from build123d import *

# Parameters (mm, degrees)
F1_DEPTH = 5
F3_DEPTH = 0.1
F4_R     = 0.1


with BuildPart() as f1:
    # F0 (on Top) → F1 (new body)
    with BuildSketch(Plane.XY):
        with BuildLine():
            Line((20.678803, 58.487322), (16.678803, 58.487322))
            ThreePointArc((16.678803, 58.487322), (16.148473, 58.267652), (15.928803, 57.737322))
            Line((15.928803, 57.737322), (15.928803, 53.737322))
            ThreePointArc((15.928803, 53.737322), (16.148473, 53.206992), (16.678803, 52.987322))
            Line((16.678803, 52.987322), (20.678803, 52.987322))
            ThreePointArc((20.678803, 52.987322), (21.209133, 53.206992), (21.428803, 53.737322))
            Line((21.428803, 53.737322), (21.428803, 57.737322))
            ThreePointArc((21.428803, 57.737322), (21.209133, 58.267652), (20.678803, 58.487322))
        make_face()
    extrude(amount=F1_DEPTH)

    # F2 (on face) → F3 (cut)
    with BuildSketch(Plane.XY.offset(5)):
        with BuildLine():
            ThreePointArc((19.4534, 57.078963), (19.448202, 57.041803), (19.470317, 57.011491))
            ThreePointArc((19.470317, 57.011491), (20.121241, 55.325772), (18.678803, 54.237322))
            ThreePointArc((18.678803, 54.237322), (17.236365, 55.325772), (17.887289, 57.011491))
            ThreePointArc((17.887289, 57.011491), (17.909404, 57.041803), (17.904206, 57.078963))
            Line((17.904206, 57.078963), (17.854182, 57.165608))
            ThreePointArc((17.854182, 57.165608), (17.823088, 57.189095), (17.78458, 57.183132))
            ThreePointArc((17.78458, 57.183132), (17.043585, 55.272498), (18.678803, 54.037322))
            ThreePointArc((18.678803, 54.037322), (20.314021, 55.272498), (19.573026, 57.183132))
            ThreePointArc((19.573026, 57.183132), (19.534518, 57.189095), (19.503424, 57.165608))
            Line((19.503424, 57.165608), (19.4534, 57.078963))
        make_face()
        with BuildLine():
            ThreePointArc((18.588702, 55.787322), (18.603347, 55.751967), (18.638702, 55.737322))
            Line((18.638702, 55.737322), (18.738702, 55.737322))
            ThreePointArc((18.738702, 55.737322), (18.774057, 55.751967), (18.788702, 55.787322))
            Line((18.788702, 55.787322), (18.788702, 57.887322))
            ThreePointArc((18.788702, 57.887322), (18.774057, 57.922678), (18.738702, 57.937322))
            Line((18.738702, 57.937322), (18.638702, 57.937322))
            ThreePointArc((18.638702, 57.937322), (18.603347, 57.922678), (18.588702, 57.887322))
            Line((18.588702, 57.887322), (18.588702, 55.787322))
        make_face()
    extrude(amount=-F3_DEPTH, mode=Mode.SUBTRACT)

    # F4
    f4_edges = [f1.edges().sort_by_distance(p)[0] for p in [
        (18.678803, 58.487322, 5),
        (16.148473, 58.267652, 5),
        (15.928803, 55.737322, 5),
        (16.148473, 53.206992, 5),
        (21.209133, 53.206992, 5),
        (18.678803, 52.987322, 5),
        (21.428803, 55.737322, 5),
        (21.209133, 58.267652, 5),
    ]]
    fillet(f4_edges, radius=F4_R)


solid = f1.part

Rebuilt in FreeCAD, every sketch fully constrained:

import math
import FreeCAD as App
import Part
import Sketcher
from FreeCAD import Vector


def edges_at(feature, points):
    """Names of the edges that pass closest to the given points."""
    edges = feature.Shape.Edges
    near = lambda p: min(range(len(edges)), key=lambda i: edges[i].distToShape(Part.Vertex(*p))[0])
    return sorted({f"Edge{near(p) + 1}" for p in points})

doc = App.newDocument("Part")
body = doc.addObject("PartDesign::Body", "Body")

sketch1 = body.newObject("Sketcher::SketchObject", "Sketch")
sketch1.AttachmentSupport = (doc.getObject("XY_Plane"), [""])
sketch1.MapMode = "FlatFace"
sketch1.addGeometry([
    Part.LineSegment(Vector(20.7, 58.5, 0), Vector(16.7, 58.5, 0)),
    Part.ArcOfCircle(Part.Circle(Vector(16.7, 57.7, 0), Vector(0, 0, 1), 0.8), math.radians(90), math.radians(180)),
    Part.LineSegment(Vector(15.9, 57.7, 0), Vector(15.9, 53.7, 0)),
    Part.ArcOfCircle(Part.Circle(Vector(16.7, 53.7, 0), Vector(0, 0, 1), 0.8), math.radians(-180), math.radians(-90)),
    Part.LineSegment(Vector(16.7, 53, 0), Vector(20.7, 53, 0)),
    Part.ArcOfCircle(Part.Circle(Vector(20.7, 53.7, 0), Vector(0, 0, 1), 0.8), math.radians(-90), math.radians(0)),
    Part.LineSegment(Vector(21.4, 53.7, 0), Vector(21.4, 57.7, 0)),
    Part.ArcOfCircle(Part.Circle(Vector(20.7, 57.7, 0), Vector(0, 0, 1), 0.8), math.radians(0), math.radians(90)),
], False)
sketch1.addConstraint([
    Sketcher.Constraint("Tangent", 0, 2, 1, 1),
    Sketcher.Constraint("Tangent", 1, 2, 2, 1),
    Sketcher.Constraint("Tangent", 2, 2, 3, 1),
    Sketcher.Constraint("Tangent", 3, 2, 4, 1),
    Sketcher.Constraint("Tangent", 4, 2, 5, 1),
    Sketcher.Constraint("Tangent", 5, 2, 6, 1),
    Sketcher.Constraint("Tangent", 6, 2, 7, 1),
    Sketcher.Constraint("Tangent", 7, 2, 0, 1),
    Sketcher.Constraint("Horizontal", 0),
    Sketcher.Constraint("Vertical", 2),
    Sketcher.Constraint("Horizontal", 4),
    Sketcher.Constraint("Vertical", 6),
    Sketcher.Constraint("Equal", 1, 3),
    Sketcher.Constraint("Equal", 3, 5),
    Sketcher.Constraint("Equal", 5, 7),
    Sketcher.Constraint("Equal", 4, 2),
    Sketcher.Constraint("DistanceX", 0, 2, 0, 1, 4.0),
    Sketcher.Constraint("Radius", 1, 0.75),
    Sketcher.Constraint("DistanceY", -1, 1, 1, 3, 57.737322),
    Sketcher.Constraint("DistanceX", -1, 1, 1, 3, 16.678803),
])
pad1 = body.newObject("PartDesign::Pad", "Pad")
pad1.Profile = sketch1
pad1.Length = 5

sketch2 = body.newObject("Sketcher::SketchObject", "Sketch001")
sketch2.AttachmentSupport = (doc.getObject("XY_Plane"), [""])
sketch2.MapMode = "FlatFace"
sketch2.AttachmentOffset = App.Placement(Vector(0, 0, 5), App.Rotation())
sketch2.addGeometry([
    Part.ArcOfCircle(Part.Circle(Vector(19.4967, 57.053963, 0), Vector(0, 0, 1), 0.049999), math.radians(149.998736), math.radians(238.152062)),
    Part.ArcOfCircle(Part.Circle(Vector(18.678803, 55.737322, 0), Vector(0, 0, 1), 1.5), math.radians(-90.000006), math.radians(58.151445)),
    Part.ArcOfCircle(Part.Circle(Vector(18.678803, 55.737322, 0), Vector(0, 0, 1), 1.5), math.radians(121.848555), math.radians(270.000006)),
    Part.ArcOfCircle(Part.Circle(Vector(17.860906, 57.053963, 0), Vector(0, 0, 1), 0.049999), math.radians(-58.152062), math.radians(30.001264)),
    Part.LineSegment(Vector(17.904206, 57.078963, 0), Vector(17.854182, 57.165608, 0)),
    Part.ArcOfCircle(Part.Circle(Vector(17.810881, 57.140608, 0), Vector(0, 0, 1), 0.05), math.radians(29.999972), math.radians(121.736254)),
    Part.ArcOfCircle(Part.Circle(Vector(18.678803, 55.737322, 0), Vector(0, 0, 1), 1.7), math.radians(121.736511), math.radians(269.999983)),
    Part.ArcOfCircle(Part.Circle(Vector(18.678803, 55.737322, 0), Vector(0, 0, 1), 1.7), math.radians(-89.999983), math.radians(58.263489)),
    Part.ArcOfCircle(Part.Circle(Vector(19.546725, 57.140608, 0), Vector(0, 0, 1), 0.05), math.radians(58.263746), math.radians(150.000028)),
    Part.LineSegment(Vector(19.503424, 57.165608, 0), Vector(19.4534, 57.078963, 0)),
    Part.ArcOfCircle(Part.Circle(Vector(18.638703, 55.787323, 0), Vector(0, 0, 1), 0.050001), math.radians(-179.998673), math.radians(-90.001327)),
    Part.LineSegment(Vector(18.638702, 55.737322, 0), Vector(18.738702, 55.737322, 0)),
    Part.ArcOfCircle(Part.Circle(Vector(18.738701, 55.787323, 0), Vector(0, 0, 1), 0.050001), math.radians(-89.998673), math.radians(-0.001327)),
    Part.LineSegment(Vector(18.788702, 55.787322, 0), Vector(18.788702, 57.887322, 0)),
    Part.ArcOfCircle(Part.Circle(Vector(18.738703, 57.887323, 0), Vector(0, 0, 1), 0.049999), math.radians(-0.000629), math.radians(90.000629)),
    Part.LineSegment(Vector(18.738702, 57.937322, 0), Vector(18.638702, 57.937322, 0)),
    Part.ArcOfCircle(Part.Circle(Vector(18.638701, 57.887323, 0), Vector(0, 0, 1), 0.049999), math.radians(89.999371), math.radians(180.000629)),
    Part.LineSegment(Vector(18.588702, 57.887322, 0), Vector(18.588702, 55.787322, 0)),
], False)
sketch2.addConstraint([
    Sketcher.Constraint("Coincident", 0, 2, 1, 2),
    Sketcher.Constraint("Coincident", 1, 1, 2, 2),
    Sketcher.Constraint("Coincident", 2, 1, 3, 1),
    Sketcher.Constraint("Coincident", 3, 2, 4, 1),
    Sketcher.Constraint("Coincident", 4, 2, 5, 1),
    Sketcher.Constraint("Coincident", 5, 2, 6, 1),
    Sketcher.Constraint("Coincident", 6, 2, 7, 1),
    Sketcher.Constraint("Coincident", 7, 2, 8, 1),
    Sketcher.Constraint("Coincident", 8, 2, 9, 1),
    Sketcher.Constraint("Coincident", 9, 2, 0, 1),
    Sketcher.Constraint("Coincident", 10, 2, 11, 1),
    Sketcher.Constraint("Coincident", 11, 2, 12, 1),
    Sketcher.Constraint("Coincident", 12, 2, 13, 1),
    Sketcher.Constraint("Coincident", 13, 2, 14, 1),
    Sketcher.Constraint("Coincident", 14, 2, 15, 1),
    Sketcher.Constraint("Coincident", 15, 2, 16, 1),
    Sketcher.Constraint("Coincident", 16, 2, 17, 1),
    Sketcher.Constraint("Coincident", 17, 2, 10, 1),
    Sketcher.Constraint("Horizontal", 11),
    Sketcher.Constraint("Vertical", 13),
    Sketcher.Constraint("Horizontal", 15),
    Sketcher.Constraint("Vertical", 17),
    Sketcher.Constraint("Coincident", 2, 3, 1, 3),
    Sketcher.Constraint("Coincident", 6, 3, 1, 3),
    Sketcher.Constraint("Coincident", 7, 3, 1, 3),
    Sketcher.Constraint("Radius", 1, 1.5),
    Sketcher.Constraint("Radius", 6, 1.7),
    Sketcher.Constraint("Radius", 0, 0.049999),
    Sketcher.Constraint("Radius", 3, 0.049999),
    Sketcher.Constraint("Radius", 5, 0.05),
    Sketcher.Constraint("Radius", 8, 0.05),
    Sketcher.Constraint("Radius", 10, 0.050001),
    Sketcher.Constraint("Radius", 12, 0.050001),
    Sketcher.Constraint("Radius", 14, 0.049999),
    Sketcher.Constraint("Radius", 16, 0.049999),
    Sketcher.Constraint("DistanceX", 11, 1, 11, 2, 0.1),
    Sketcher.Constraint("DistanceX", 15, 2, 15, 1, 0.1),
    Sketcher.Constraint("DistanceY", 13, 1, 13, 2, 2.1),
    Sketcher.Constraint("DistanceY", 17, 2, 17, 1, 2.1),
    Sketcher.Constraint("DistanceY", 12, 3, 14, 3, 2.099999),
    Sketcher.Constraint("DistanceX", 16, 3, 14, 3, 0.100001),
    Sketcher.Constraint("DistanceX", 16, 3, 14, 2, 0.100001),
    Sketcher.Constraint("DistanceY", 7, 3, 10, 3, 0.050001),
    Sketcher.Constraint("DistanceX", 11, 2, 12, 2, 0.05),
    Sketcher.Constraint("DistanceY", 11, 2, 12, 2, 0.05),
    Sketcher.Constraint("DistanceY", 16, 2, 15, 2, 0.05),
    Sketcher.Constraint("DistanceX", 16, 3, 0, 3, 0.857998),
    Sketcher.Constraint("DistanceY", 3, 3, 3, 2, 0.025),
    Sketcher.Constraint("DistanceY", 5, 3, 4, 2, 0.025),
    Sketcher.Constraint("DistanceY", 8, 3, 8, 2, 0.025),
    Sketcher.Constraint("DistanceY", 0, 3, 9, 2, 0.025),
    Sketcher.Constraint("DistanceX", -1, 1, 0, 3, 19.4967),
    Sketcher.Constraint("DistanceX", 10, 3, 7, 3, 0.040099),
    Sketcher.Constraint("DistanceX", 10, 3, 1, 1, 0.0401),
    Sketcher.Constraint("DistanceX", 5, 2, 5, 3, 0.026301),
    Sketcher.Constraint("DistanceX", 8, 3, 7, 2, 0.026301),
    Sketcher.Constraint("Distance", 4, 0.100049),
    Sketcher.Constraint("Distance", 9, 0.100049),
    Sketcher.Constraint("DistanceX", -1, 1, 5, 3, 17.810881),
    Sketcher.Constraint("DistanceY", -1, 1, 0, 2, 57.011491),
    Sketcher.Constraint("DistanceX", -1, 1, 2, 1, 17.887289),
    Sketcher.Constraint("DistanceY", -1, 1, 2, 1, 57.011491),
    Sketcher.Constraint("DistanceX", -1, 1, 6, 2, 18.678803),
])
pocket1 = body.newObject("PartDesign::Pocket", "Pocket")
pocket1.Profile = sketch2
pocket1.Length = 0.1
doc.recompute()

fillet = body.newObject("PartDesign::Fillet", "Fillet")
fillet.Base = (pocket1, edges_at(pocket1, [
    (18.679, 58.487, 5),
    (16.148, 58.268, 5),
    (15.929, 55.737, 5),
    (16.148, 53.207, 5),
    (21.209, 53.207, 5),
    (18.679, 52.987, 5),
    (21.429, 55.737, 5),
    (21.209, 58.268, 5),
]))
fillet.Radius = 0.1

doc.recompute()
